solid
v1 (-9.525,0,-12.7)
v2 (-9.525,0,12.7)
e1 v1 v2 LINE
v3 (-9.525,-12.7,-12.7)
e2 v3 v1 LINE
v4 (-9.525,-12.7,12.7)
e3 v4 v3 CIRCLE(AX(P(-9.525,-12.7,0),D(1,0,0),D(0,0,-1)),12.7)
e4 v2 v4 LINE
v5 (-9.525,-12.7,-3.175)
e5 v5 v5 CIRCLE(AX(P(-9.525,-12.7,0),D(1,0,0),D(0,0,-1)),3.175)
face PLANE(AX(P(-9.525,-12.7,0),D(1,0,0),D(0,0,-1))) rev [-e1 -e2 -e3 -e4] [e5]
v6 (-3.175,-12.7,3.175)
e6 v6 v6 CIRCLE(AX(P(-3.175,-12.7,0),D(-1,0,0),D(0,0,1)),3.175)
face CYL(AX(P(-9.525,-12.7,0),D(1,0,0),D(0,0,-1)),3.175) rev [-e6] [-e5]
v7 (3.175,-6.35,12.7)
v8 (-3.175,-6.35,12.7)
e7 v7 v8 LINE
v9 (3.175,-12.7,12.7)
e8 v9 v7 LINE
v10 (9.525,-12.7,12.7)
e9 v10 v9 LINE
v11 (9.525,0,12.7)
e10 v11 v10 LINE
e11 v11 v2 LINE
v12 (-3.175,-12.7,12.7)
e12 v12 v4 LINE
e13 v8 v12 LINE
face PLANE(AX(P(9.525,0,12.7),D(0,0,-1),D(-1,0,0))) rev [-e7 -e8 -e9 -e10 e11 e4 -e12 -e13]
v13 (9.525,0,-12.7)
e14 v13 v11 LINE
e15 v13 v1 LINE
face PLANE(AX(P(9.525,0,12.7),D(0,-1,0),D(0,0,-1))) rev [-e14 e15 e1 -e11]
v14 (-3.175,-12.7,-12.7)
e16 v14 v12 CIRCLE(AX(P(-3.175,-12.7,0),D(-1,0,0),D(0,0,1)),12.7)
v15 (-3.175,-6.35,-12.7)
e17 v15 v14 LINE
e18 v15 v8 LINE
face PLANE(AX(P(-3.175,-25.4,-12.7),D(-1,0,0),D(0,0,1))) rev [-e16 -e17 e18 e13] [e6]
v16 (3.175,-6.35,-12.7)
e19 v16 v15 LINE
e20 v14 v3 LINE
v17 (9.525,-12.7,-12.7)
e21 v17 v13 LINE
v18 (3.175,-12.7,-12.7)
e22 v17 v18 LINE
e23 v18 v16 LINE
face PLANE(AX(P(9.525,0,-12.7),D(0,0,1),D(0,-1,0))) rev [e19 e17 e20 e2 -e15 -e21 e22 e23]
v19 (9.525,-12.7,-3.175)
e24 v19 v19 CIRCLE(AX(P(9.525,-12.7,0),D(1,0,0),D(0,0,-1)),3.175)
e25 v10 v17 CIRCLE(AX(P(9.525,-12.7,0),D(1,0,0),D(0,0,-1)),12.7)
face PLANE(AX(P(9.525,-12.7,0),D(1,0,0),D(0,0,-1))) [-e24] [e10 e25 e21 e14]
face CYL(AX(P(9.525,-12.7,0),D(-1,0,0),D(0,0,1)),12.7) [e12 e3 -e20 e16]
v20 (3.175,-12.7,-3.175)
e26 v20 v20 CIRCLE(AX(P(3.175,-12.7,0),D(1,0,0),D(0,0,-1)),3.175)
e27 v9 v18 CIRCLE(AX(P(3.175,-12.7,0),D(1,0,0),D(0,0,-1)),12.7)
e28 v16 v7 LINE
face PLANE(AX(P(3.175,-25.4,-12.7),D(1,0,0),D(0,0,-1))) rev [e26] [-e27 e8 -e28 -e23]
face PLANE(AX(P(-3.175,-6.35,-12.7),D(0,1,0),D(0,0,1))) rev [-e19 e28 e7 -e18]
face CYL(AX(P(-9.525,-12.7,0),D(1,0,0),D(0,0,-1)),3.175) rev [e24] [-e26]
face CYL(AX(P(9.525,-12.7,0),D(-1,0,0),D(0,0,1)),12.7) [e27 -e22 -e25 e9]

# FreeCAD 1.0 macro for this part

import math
import FreeCAD as App
import Part
import Sketcher
from FreeCAD import Vector
Q = App.Units.Quantity


def add_polygon(sketch, points):
    """Adds a closed chain of lines whose ends are joined by coincident constraints."""
    first, n = sketch.GeometryCount, len(points)
    for a, b in zip(points, points[1:] + points[:1]):
        sketch.addGeometry(Part.LineSegment(App.Vector(*a, 0), App.Vector(*b, 0)), False)
    for i in range(n):
        sketch.addConstraint(Sketcher.Constraint("Coincident", first + i, 2, first + (i + 1) % n, 1))

doc = App.newDocument("Part")
body = doc.addObject("PartDesign::Body", "Body")

sketch1 = doc.addObject("Sketcher::SketchObject", "Sketch")
body.addObject(sketch1)
sketch1.AttachmentSupport = (doc.YZ_Plane, [""])
sketch1.MapMode = "FlatFace"
sketch1.addGeometry([
    Part.LineSegment(Vector(-12.7, -12.7, 0), Vector(0, -12.7, 0)),
    Part.LineSegment(Vector(0, -12.7, 0), Vector(0, 12.7, 0)),
    Part.LineSegment(Vector(0, 12.7, 0), Vector(-12.7, 12.7, 0)),
    Part.ArcOfCircle(Part.Circle(Vector(-12.7, 0, 0), Vector(0, 0, 1), 12.7), math.radians(90), math.radians(270)),
], False)
sketch1.addConstraint([
    Sketcher.Constraint("Coincident", 0, 2, 1, 1),
    Sketcher.Constraint("Coincident", 1, 2, 2, 1),
    Sketcher.Constraint("Tangent", 2, 2, 3, 1),
    Sketcher.Constraint("Tangent", 3, 2, 0, 1),
    Sketcher.Constraint("Horizontal", 0),
    Sketcher.Constraint("Vertical", 1),
    Sketcher.Constraint("Horizontal", 2),
    Sketcher.Constraint("Symmetric", 0, 2, 1, 2, -1, 1),
    Sketcher.Constraint("Radius", 3, Q("0.5 in")),
    Sketcher.Constraint("DistanceX", 0, 1, 0, 2, Q("0.5 in")),
])
pad1 = doc.addObject("PartDesign::Pad", "Pad")
body.addObject(pad1)
pad1.Profile = sketch1
pad1.Length = Q("0.75 in")
pad1.Midplane = True

sketch2 = doc.addObject("Sketcher::SketchObject", "Sketch001")
body.addObject(sketch2)
sketch2.AttachmentSupport = (doc.XY_Plane, [""])
sketch2.MapMode = "FlatFace"
add_polygon(sketch2, [(-3.175, -6.35), (-3.175, -25.4), (3.175, -25.4), (3.175, -6.35)])
sketch2.addConstraint([
    Sketcher.Constraint("Vertical", 0),
    Sketcher.Constraint("Horizontal", 1),
    Sketcher.Constraint("Vertical", 2),
    Sketcher.Constraint("Horizontal", 3),
    Sketcher.Constraint("DistanceY", 0, 2, -1, 1, Q("1 in")),
    Sketcher.Constraint("DistanceX", 1, 1, 1, 2, Q("0.25 in")),
    Sketcher.Constraint("DistanceY", 0, 2, 0, 1, Q("0.75 in")),
    Sketcher.Constraint("DistanceX", 0, 2, -1, 1, Q("0.125 in")),
])
pocket1 = doc.addObject("PartDesign::Pocket", "Pocket")
body.addObject(pocket1)
pocket1.Profile = sketch2
pocket1.Type = "ThroughAll"
pocket1.Midplane = True

sketch3 = doc.addObject("Sketcher::SketchObject", "Sketch002")
body.addObject(sketch3)
sketch3.AttachmentSupport = (doc.YZ_Plane, [""])
sketch3.MapMode = "FlatFace"
sketch3.addGeometry(Part.Circle(Vector(-12.7, 0, 0), Vector(0, 0, 1), 3.175), False)
sketch3.addConstraint([
    Sketcher.Constraint("PointOnObject", 0, 3, -1),
    Sketcher.Constraint("Diameter", 0, Q("0.25 in")),
    Sketcher.Constraint("DistanceX", 0, 3, -1, 1, Q("0.5 in")),
])
pocket2 = doc.addObject("PartDesign::Pocket", "Pocket001")
body.addObject(pocket2)
pocket2.Profile = sketch3
pocket2.Type = "ThroughAll"
pocket2.Midplane = True

doc.recompute()
